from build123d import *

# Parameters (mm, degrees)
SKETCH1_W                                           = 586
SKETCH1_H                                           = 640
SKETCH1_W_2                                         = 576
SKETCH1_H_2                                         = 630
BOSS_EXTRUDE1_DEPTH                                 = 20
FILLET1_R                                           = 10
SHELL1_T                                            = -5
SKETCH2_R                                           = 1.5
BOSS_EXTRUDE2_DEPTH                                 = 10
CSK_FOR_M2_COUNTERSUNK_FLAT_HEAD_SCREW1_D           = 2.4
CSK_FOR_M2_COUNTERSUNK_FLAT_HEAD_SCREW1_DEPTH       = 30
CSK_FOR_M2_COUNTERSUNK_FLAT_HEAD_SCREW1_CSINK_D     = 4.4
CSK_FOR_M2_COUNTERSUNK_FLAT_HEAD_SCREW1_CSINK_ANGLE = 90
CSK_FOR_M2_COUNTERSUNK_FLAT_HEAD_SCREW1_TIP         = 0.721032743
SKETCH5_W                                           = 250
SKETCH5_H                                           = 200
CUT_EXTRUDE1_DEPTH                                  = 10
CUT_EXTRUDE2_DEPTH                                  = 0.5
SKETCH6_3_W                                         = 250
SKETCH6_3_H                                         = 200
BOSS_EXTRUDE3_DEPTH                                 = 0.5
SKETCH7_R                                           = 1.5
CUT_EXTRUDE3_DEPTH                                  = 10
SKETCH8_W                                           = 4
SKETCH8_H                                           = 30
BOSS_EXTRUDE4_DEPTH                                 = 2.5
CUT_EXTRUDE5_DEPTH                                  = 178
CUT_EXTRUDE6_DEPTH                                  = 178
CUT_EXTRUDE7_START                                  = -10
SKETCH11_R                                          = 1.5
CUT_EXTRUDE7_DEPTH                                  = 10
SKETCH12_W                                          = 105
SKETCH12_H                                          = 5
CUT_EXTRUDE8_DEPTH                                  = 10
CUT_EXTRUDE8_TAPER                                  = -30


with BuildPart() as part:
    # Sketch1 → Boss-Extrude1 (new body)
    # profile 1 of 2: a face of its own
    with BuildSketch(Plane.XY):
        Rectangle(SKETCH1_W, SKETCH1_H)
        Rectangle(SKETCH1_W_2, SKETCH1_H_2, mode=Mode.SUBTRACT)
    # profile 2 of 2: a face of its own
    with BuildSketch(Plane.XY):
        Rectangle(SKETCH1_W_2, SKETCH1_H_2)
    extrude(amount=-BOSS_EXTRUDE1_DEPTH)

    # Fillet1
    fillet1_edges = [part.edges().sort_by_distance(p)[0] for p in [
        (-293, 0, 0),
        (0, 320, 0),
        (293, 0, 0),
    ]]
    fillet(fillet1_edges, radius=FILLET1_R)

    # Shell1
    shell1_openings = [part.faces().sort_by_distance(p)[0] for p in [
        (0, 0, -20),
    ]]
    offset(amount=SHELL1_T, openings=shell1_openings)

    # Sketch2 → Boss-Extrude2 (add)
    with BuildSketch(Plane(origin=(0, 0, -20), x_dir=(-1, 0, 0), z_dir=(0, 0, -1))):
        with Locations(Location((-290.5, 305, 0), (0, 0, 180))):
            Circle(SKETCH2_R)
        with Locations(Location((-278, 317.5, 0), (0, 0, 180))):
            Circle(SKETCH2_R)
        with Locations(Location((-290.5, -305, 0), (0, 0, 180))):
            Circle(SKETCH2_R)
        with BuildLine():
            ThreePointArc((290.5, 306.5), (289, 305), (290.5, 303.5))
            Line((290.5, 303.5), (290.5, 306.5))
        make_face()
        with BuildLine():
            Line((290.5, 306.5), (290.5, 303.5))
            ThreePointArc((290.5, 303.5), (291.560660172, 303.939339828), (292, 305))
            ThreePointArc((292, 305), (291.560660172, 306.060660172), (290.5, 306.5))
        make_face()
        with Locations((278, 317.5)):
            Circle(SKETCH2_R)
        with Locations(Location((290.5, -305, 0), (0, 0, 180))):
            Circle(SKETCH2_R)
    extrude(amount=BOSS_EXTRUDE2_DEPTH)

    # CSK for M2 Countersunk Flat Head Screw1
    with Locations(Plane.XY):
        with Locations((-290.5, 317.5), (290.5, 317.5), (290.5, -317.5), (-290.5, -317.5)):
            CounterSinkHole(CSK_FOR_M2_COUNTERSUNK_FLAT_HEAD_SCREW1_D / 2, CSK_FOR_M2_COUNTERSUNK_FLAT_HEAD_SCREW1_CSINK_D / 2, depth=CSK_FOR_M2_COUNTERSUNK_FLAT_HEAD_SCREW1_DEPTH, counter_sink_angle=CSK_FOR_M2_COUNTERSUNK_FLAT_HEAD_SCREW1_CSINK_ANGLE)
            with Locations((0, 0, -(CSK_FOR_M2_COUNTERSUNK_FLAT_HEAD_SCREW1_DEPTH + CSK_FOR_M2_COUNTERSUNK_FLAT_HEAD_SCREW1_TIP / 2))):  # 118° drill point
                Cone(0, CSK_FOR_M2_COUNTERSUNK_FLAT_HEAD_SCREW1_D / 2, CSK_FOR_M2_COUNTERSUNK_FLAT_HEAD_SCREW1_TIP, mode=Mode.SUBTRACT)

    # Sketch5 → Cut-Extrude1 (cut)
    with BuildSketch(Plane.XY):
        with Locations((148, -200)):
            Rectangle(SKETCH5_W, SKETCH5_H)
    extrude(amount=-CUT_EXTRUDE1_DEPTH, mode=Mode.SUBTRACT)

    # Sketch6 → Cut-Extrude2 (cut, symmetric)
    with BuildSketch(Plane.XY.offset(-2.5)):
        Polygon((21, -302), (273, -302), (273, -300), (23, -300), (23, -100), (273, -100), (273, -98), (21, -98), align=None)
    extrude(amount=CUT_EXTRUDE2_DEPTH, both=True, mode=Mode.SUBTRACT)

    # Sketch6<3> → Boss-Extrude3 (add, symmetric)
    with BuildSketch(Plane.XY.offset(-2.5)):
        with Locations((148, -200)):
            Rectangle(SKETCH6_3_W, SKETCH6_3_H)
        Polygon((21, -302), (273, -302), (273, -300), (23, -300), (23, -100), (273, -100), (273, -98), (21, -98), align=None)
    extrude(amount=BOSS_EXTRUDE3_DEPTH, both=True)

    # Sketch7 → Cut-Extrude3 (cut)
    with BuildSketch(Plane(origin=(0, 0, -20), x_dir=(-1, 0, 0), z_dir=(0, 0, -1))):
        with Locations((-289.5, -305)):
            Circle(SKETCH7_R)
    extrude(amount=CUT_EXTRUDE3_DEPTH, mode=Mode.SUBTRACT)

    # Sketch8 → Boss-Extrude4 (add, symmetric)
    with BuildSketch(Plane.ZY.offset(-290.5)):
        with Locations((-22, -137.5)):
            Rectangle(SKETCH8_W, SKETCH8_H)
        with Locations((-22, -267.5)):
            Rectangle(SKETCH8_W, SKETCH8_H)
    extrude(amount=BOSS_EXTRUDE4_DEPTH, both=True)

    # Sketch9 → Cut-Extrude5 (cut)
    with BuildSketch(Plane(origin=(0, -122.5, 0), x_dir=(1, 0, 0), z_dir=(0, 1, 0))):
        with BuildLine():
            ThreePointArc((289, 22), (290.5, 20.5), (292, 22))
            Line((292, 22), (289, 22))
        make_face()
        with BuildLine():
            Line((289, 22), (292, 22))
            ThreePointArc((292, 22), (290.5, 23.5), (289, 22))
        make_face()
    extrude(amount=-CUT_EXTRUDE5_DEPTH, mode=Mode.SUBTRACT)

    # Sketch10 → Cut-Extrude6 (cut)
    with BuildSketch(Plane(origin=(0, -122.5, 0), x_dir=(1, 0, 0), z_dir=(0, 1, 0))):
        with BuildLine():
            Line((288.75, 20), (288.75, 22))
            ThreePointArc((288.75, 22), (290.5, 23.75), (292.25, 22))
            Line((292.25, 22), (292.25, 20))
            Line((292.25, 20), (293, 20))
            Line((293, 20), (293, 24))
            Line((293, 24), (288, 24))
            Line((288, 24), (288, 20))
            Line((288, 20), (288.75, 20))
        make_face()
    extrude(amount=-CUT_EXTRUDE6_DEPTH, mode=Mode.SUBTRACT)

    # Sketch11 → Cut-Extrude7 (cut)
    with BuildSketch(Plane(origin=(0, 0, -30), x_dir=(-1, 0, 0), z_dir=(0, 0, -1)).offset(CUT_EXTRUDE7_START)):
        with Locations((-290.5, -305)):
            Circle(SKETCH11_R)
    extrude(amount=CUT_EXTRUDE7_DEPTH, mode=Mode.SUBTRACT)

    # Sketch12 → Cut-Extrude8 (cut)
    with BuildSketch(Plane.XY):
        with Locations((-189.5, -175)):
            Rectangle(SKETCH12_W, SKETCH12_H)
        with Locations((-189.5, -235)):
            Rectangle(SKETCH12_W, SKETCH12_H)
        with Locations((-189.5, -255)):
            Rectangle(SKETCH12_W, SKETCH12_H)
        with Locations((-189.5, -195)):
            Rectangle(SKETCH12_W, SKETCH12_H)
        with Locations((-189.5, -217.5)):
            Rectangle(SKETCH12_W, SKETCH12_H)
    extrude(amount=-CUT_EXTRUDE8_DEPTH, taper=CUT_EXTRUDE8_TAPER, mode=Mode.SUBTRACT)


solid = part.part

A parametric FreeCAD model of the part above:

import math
import FreeCAD as App
import Part
import Sketcher

V = App.Vector
Q = App.Units.Quantity


def edges_at(feature, points):
    """Names of the edges that pass closest to the given points."""
    edges = feature.Shape.Edges
    near = lambda p: min(range(len(edges)), key=lambda i: edges[i].distToShape(Part.Vertex(*p))[0])
    return sorted({f"Edge{near(p) + 1}" for p in points})


def faces_at(feature, points):
    """Names of the faces that lie closest to the given points."""
    faces = feature.Shape.Faces
    near = lambda p: min(range(len(faces)), key=lambda i: faces[i].distToShape(Part.Vertex(*p))[0])
    return sorted({f"Face{near(p) + 1}" for p in points})


def add_polygon(sketch, points):
    """Adds a closed chain of lines whose ends are joined by coincident constraints."""
    first, n = sketch.GeometryCount, len(points)
    for a, b in zip(points, points[1:] + points[:1]):
        sketch.addGeometry(Part.LineSegment(App.Vector(*a, 0), App.Vector(*b, 0)), False)
    for i in range(n):
        sketch.addConstraint(Sketcher.Constraint("Coincident", first + i, 2, first + (i + 1) % n, 1))

doc = App.newDocument("Part")
body = doc.addObject("PartDesign::Body", "Body")

sketch1 = body.newObject("Sketcher::SketchObject", "Sketch")
sketch1.AttachmentSupport = (doc.getObject("XY_Plane"), [""])
sketch1.MapMode = "FlatFace"
add_polygon(sketch1, [(-293, 320), (-293, -320), (293, -320), (293, 320)])
sketch1.addConstraint([
    Sketcher.Constraint("Vertical", 0),
    Sketcher.Constraint("Horizontal", 1),
    Sketcher.Constraint("Vertical", 2),
    Sketcher.Constraint("Horizontal", 3),
    Sketcher.Constraint("Symmetric", 0, 2, 2, 2, -1, 1),
    Sketcher.Constraint("DistanceX", 1, 1, 1, 2, Q("586 mm")),
    Sketcher.Constraint("DistanceY", 0, 2, 0, 1, Q("640 mm")),
])
pad1 = body.newObject("PartDesign::Pad", "Pad")
pad1.Profile = sketch1
pad1.Length = 20
pad1.Reversed = True
doc.recompute()

fillet = body.newObject("PartDesign::Fillet", "Fillet")
fillet.Base = (pad1, edges_at(pad1, [(-293, 0, 0), (0, 320, 0), (293, 0, 0)]))
fillet.Radius = 10
doc.recompute()

thickness = body.newObject("PartDesign::Thickness", "Thickness")
thickness.Base = (fillet, faces_at(fillet, [(0, 0, -20)]))
thickness.Value = 5
thickness.Reversed = True
thickness.Join = "Arc"

sketch2 = body.newObject("Sketcher::SketchObject", "Sketch001")
sketch2.AttachmentSupport = (doc.getObject("XY_Plane"), [""])
sketch2.MapMode = "FlatFace"
sketch2.AttachmentOffset = App.Placement(V(0, 0, -20), App.Rotation())
sketch2.addGeometry([
    Part.Circle(V(290.5, 305, 0), V(0, 0, 1), 1.5),
    Part.Circle(V(278, 317.5, 0), V(0, 0, 1), 1.5),
    Part.Circle(V(290.5, -305, 0), V(0, 0, 1), 1.5),
    Part.ArcOfCircle(Part.Circle(V(-290.5, 305, 0), V(0, 0, 1), 1.5), math.radians(-90), math.radians(90)),
    Part.ArcOfCircle(Part.Circle(V(-290.5, 305, 0), V(0, 0, 1), 1.5), math.radians(180), math.radians(270)),
    Part.ArcOfCircle(Part.Circle(V(-290.5, 305, 0), V(0, 0, 1), 1.5), math.radians(90), math.radians(180)),
    Part.Circle(V(-278, 317.5, 0), V(0, 0, 1), 1.5),
    Part.Circle(V(-290.5, -305, 0), V(0, 0, 1), 1.5),
], False)
sketch2.addConstraint([
    Sketcher.Constraint("Tangent", 3, 1, 4, 2),
    Sketcher.Constraint("Tangent", 4, 1, 5, 2),
    Sketcher.Constraint("Tangent", 5, 1, 3, 2),
    Sketcher.Constraint("Equal", 0, 1),
    Sketcher.Constraint("Equal", 1, 2),
    Sketcher.Constraint("Equal", 2, 3),
    Sketcher.Constraint("Equal", 5, 6),
    Sketcher.Constraint("Equal", 6, 7),
    Sketcher.Constraint("Symmetric", 2, 3, 3, 3, -1, 1),
    Sketcher.Constraint("Symmetric", 0, 3, 7, 3, -1, 1),
    Sketcher.Constraint("Symmetric", 0, 3, 3, 3, -2),
    Sketcher.Constraint("Symmetric", 1, 3, 6, 3, -2),
    Sketcher.Constraint("Horizontal", 5, 3, 4, 1),
    Sketcher.Constraint("Vertical", 7, 3, 3, 1),
    Sketcher.Constraint("Vertical", 3, 1, 5, 1),
    Sketcher.Constraint("Diameter", 0, Q("3 mm")),
    Sketcher.Constraint("DistanceY", -1, 1, 0, 3, Q("305 mm")),
    Sketcher.Constraint("DistanceX", -1, 1, 1, 3, Q("278 mm")),
    Sketcher.Constraint("DistanceX", 4, 1, -1, 1, Q("292 mm")),
    Sketcher.Constraint("DistanceY", 3, 1, 6, 3, Q("14 mm")),
])
pad2 = body.newObject("PartDesign::Pad", "Pad001")
pad2.Profile = sketch2
pad2.Length = 10
pad2.Reversed = True

sketch3 = body.newObject("Sketcher::SketchObject", "Sketch002")
sketch3.AttachmentSupport = (doc.getObject("XY_Plane"), [""])
sketch3.MapMode = "FlatFace"
sketch3.addGeometry([
    Part.Circle(V(-290.5, 317.5, 0), V(0, 0, 1), 1.2),
    Part.Circle(V(290.5, 317.5, 0), V(0, 0, 1), 1.2),
    Part.Circle(V(290.5, -317.5, 0), V(0, 0, 1), 1.2),
    Part.Circle(V(-290.5, -317.5, 0), V(0, 0, 1), 1.2),
], False)
sketch3.addConstraint([
    Sketcher.Constraint("Equal", 0, 1),
    Sketcher.Constraint("Equal", 1, 2),
    Sketcher.Constraint("Equal", 2, 3),
    Sketcher.Constraint("Symmetric", 0, 3, 2, 3, -1, 1),
    Sketcher.Constraint("Symmetric", 1, 3, 3, 3, -1, 1),
    Sketcher.Constraint("Symmetric", 0, 3, 1, 3, -2),
    Sketcher.Constraint("Diameter", 0, Q("2.4 mm")),
    Sketcher.Constraint("DistanceX", 0, 3, 1, 3, Q("581 mm")),
    Sketcher.Constraint("DistanceY", 2, 3, 1, 3, Q("635 mm")),
])
doc.recompute()
hole = body.newObject("PartDesign::Hole", "Hole")
hole.Profile = sketch3
hole.ThreadType = "None"
hole.Diameter = 2.4
hole.DepthType = "Dimension"
hole.Depth = 30
hole.DrillPoint = "Angled"
hole.DrillPointAngle = 118
hole.HoleCutType = "Countersink"
hole.HoleCutDiameter = 4.4
hole.HoleCutCountersinkAngle = 90

sketch4 = body.newObject("Sketcher::SketchObject", "Sketch003")
sketch4.AttachmentSupport = (doc.getObject("XY_Plane"), [""])
sketch4.MapMode = "FlatFace"
add_polygon(sketch4, [(23, -100), (23, -300), (273, -300), (273, -100)])
sketch4.addConstraint([
    Sketcher.Constraint("Vertical", 0),
    Sketcher.Constraint("Horizontal", 1),
    Sketcher.Constraint("Vertical", 2),
    Sketcher.Constraint("Horizontal", 3),
    Sketcher.Constraint("DistanceX", 1, 1, 1, 2, Q("250 mm")),
    Sketcher.Constraint("DistanceY", 0, 2, 0, 1, Q("200 mm")),
    Sketcher.Constraint("DistanceX", -1, 1, 0, 2, Q("23 mm")),
    Sketcher.Constraint("DistanceY", 0, 2, -1, 1, Q("300 mm")),
])
pocket1 = body.newObject("PartDesign::Pocket", "Pocket")
pocket1.Profile = sketch4
pocket1.Length = 10

sketch5 = body.newObject("Sketcher::SketchObject", "Sketch004")
sketch5.AttachmentSupport = (doc.getObject("XY_Plane"), [""])
sketch5.MapMode = "FlatFace"
sketch5.AttachmentOffset = App.Placement(V(0, 0, -2.5), App.Rotation())
add_polygon(sketch5, [(21, -302), (273, -302), (273, -300), (23, -300), (23, -100), (273, -100), (273, -98), (21, -98)])
sketch5.addConstraint([
    Sketcher.Constraint("Horizontal", 0),
    Sketcher.Constraint("Vertical", 1),
    Sketcher.Constraint("Horizontal", 2),
    Sketcher.Constraint("Vertical", 3),
    Sketcher.Constraint("Horizontal", 4),
    Sketcher.Constraint("Vertical", 5),
    Sketcher.Constraint("Horizontal", 6),
    Sketcher.Constraint("Vertical", 7),
    Sketcher.Constraint("Vertical", 1, 2, 4, 2),
    Sketcher.Constraint("Equal", 1, 5),
    Sketcher.Constraint("DistanceX", 0, 1, 0, 2, Q("252 mm")),
    Sketcher.Constraint("DistanceX", 2, 2, 2, 1, Q("250 mm")),
    Sketcher.Constraint("DistanceY", 1, 1, 1, 2, Q("2 mm")),
    Sketcher.Constraint("DistanceY", 3, 1, 3, 2, Q("200 mm")),
    Sketcher.Constraint("DistanceX", -1, 1, 0, 2, Q("273 mm")),
    Sketcher.Constraint("DistanceY", 0, 2, -1, 1, Q("302 mm")),
])
pocket2 = body.newObject("PartDesign::Pocket", "Pocket001")
pocket2.Profile = sketch5
pocket2.Length = 1
pocket2.Midplane = True

sketch6 = body.newObject("Sketcher::SketchObject", "Sketch005")
sketch6.AttachmentSupport = (doc.getObject("XY_Plane"), [""])
sketch6.MapMode = "FlatFace"
sketch6.AttachmentOffset = App.Placement(V(0, 0, -2.5), App.Rotation())
add_polygon(sketch6, [(273, -98), (21, -98), (21, -302), (273, -302)])
sketch6.addConstraint([
    Sketcher.Constraint("Horizontal", 0),
    Sketcher.Constraint("Vertical", 1),
    Sketcher.Constraint("Horizontal", 2),
    Sketcher.Constraint("Vertical", 3),
    Sketcher.Constraint("DistanceX", 0, 2, 0, 1, Q("252 mm")),
    Sketcher.Constraint("DistanceY", 1, 2, 1, 1, Q("204 mm")),
    Sketcher.Constraint("DistanceX", -1, 1, 0, 2, Q("21 mm")),
    Sketcher.Constraint("DistanceY", 0, 2, -1, 1, Q("98 mm")),
])
pad3 = body.newObject("PartDesign::Pad", "Pad002")
pad3.Profile = sketch6
pad3.Length = 1
pad3.Midplane = True

sketch7 = body.newObject("Sketcher::SketchObject", "Sketch006")
sketch7.AttachmentSupport = (doc.getObject("XY_Plane"), [""])
sketch7.MapMode = "FlatFace"
sketch7.AttachmentOffset = App.Placement(V(0, 0, -20), App.Rotation())
sketch7.addGeometry(Part.Circle(V(289.5, -305, 0), V(0, 0, 1), 1.5), False)
sketch7.addConstraint([
    Sketcher.Constraint("Diameter", 0, Q("3 mm")),
    Sketcher.Constraint("DistanceY", 0, 3, -1, 1, Q("305 mm")),
    Sketcher.Constraint("DistanceX", -1, 1, 0, 3, Q("289.5 mm")),
])
pocket3 = body.newObject("PartDesign::Pocket", "Pocket002")
pocket3.Profile = sketch7
pocket3.Length = 10

sketch8 = body.newObject("Sketcher::SketchObject", "Sketch007")
sketch8.AttachmentSupport = (doc.getObject("YZ_Plane"), [""])
sketch8.MapMode = "FlatFace"
sketch8.AttachmentOffset = App.Placement(V(0, 0, 290.5), App.Rotation())
add_polygon(sketch8, [(-122.5, -24), (-152.5, -24), (-152.5, -20), (-122.5, -20)])
add_polygon(sketch8, [(-252.5, -24), (-282.5, -24), (-282.5, -20), (-252.5, -20)])
sketch8.addConstraint([
    Sketcher.Constraint("Horizontal", 0),
    Sketcher.Constraint("Vertical", 1),
    Sketcher.Constraint("Horizontal", 2),
    Sketcher.Constraint("Vertical", 3),
    Sketcher.Constraint("Horizontal", 4),
    Sketcher.Constraint("Vertical", 5),
    Sketcher.Constraint("Horizontal", 6),
    Sketcher.Constraint("Vertical", 7),
    Sketcher.Constraint("Horizontal", 3, 2, 4, 2),
    Sketcher.Constraint("Horizontal", 2, 2, 5, 2),
    Sketcher.Constraint("Equal", 2, 4),
    Sketcher.Constraint("DistanceX", 0, 2, 0, 1, Q("30 mm")),
    Sketcher.Constraint("DistanceY", 1, 1, 1, 2, Q("4 mm")),
    Sketcher.Constraint("DistanceY", 0, 2, -1, 1, Q("24 mm")),
    Sketcher.Constraint("DistanceX", 4, 2, 0, 2, Q("130 mm")),
    Sketcher.Constraint("DistanceX", 0, 2, -1, 1, Q("152.5 mm")),
])
pad4 = body.newObject("PartDesign::Pad", "Pad003")
pad4.Profile = sketch8
pad4.Length = 5
pad4.Midplane = True

sketch9 = body.newObject("Sketcher::SketchObject", "Sketch008")
sketch9.AttachmentSupport = (doc.getObject("XZ_Plane"), [""])
sketch9.MapMode = "FlatFace"
sketch9.AttachmentOffset = App.Placement(V(0, 0, 122.5), App.Rotation())
sketch9.addGeometry(Part.Circle(V(290.5, -22, 0), V(0, 0, 1), 1.5), False)
sketch9.addConstraint([
    Sketcher.Constraint("Diameter", 0, Q("3 mm")),
    Sketcher.Constraint("DistanceY", 0, 3, -1, 1, Q("22 mm")),
    Sketcher.Constraint("DistanceX", -1, 1, 0, 3, Q("290.5 mm")),
])
pocket4 = body.newObject("PartDesign::Pocket", "Pocket003")
pocket4.Profile = sketch9
pocket4.Length = 178
pocket4.Reversed = True

sketch10 = body.newObject("Sketcher::SketchObject", "Sketch009")
sketch10.AttachmentSupport = (doc.getObject("XZ_Plane"), [""])
sketch10.MapMode = "FlatFace"
sketch10.AttachmentOffset = App.Placement(V(0, 0, 122.5), App.Rotation())
sketch10.addGeometry([
    Part.LineSegment(V(288.8, -20, 0), V(288.8, -22, 0)),
    Part.ArcOfCircle(Part.Circle(V(290.5, -22, 0), V(0, 0, 1), 1.8), math.radians(180), math.radians(360)),
    Part.LineSegment(V(292.2, -22, 0), V(292.2, -20, 0)),
    Part.LineSegment(V(292.2, -20, 0), V(293, -20, 0)),
    Part.LineSegment(V(293, -20, 0), V(293, -24, 0)),
    Part.LineSegment(V(293, -24, 0), V(288, -24, 0)),
    Part.LineSegment(V(288, -24, 0), V(288, -20, 0)),
    Part.LineSegment(V(288, -20, 0), V(288.8, -20, 0)),
], False)
sketch10.addConstraint([
    Sketcher.Constraint("Tangent", 0, 2, 1, 1),
    Sketcher.Constraint("Tangent", 1, 2, 2, 1),
    Sketcher.Constraint("Coincident", 2, 2, 3, 1),
    Sketcher.Constraint("Coincident", 3, 2, 4, 1),
    Sketcher.Constraint("Coincident", 4, 2, 5, 1),
    Sketcher.Constraint("Coincident", 5, 2, 6, 1),
    Sketcher.Constraint("Coincident", 6, 2, 7, 1),
    Sketcher.Constraint("Coincident", 7, 2, 0, 1),
    Sketcher.Constraint("Vertical", 0),
    Sketcher.Constraint("Vertical", 2),
    Sketcher.Constraint("Horizontal", 3),
    Sketcher.Constraint("Vertical", 4),
    Sketcher.Constraint("Horizontal", 5),
    Sketcher.Constraint("Vertical", 6),
    Sketcher.Constraint("Horizontal", 7),
    Sketcher.Constraint("Horizontal", 3, 2, 6, 2),
    Sketcher.Constraint("Equal", 3, 7),
    Sketcher.Constraint("DistanceX", 5, 2, 5, 1, Q("5 mm")),
    Sketcher.Constraint("DistanceY", 0, 2, 0, 1, Q("2 mm")),
    Sketcher.Constraint("DistanceY", 4, 2, 4, 1, Q("4 mm")),
    Sketcher.Constraint("Radius", 1, Q("1.75 mm")),
    Sketcher.Constraint("DistanceY", 1, 3, -1, 1, Q("22 mm")),
    Sketcher.Constraint("DistanceX", -1, 1, 3, 2, Q("293 mm")),
])
pocket5 = body.newObject("PartDesign::Pocket", "Pocket004")
pocket5.Profile = sketch10
pocket5.Length = 178
pocket5.Reversed = True

sketch11 = body.newObject("Sketcher::SketchObject", "Sketch010")
sketch11.AttachmentSupport = (doc.getObject("XY_Plane"), [""])
sketch11.MapMode = "FlatFace"
sketch11.AttachmentOffset = App.Placement(V(0, 0, -20), App.Rotation())
sketch11.addGeometry(Part.Circle(V(290.5, -305, 0), V(0, 0, 1), 1.5), False)
sketch11.addConstraint([
    Sketcher.Constraint("Diameter", 0, Q("3 mm")),
    Sketcher.Constraint("DistanceY", 0, 3, -1, 1, Q("305 mm")),
    Sketcher.Constraint("DistanceX", -1, 1, 0, 3, Q("290.5 mm")),
])
pocket6 = body.newObject("PartDesign::Pocket", "Pocket005")
pocket6.Profile = sketch11
pocket6.Length = 10

sketch12 = body.newObject("Sketcher::SketchObject", "Sketch011")
sketch12.AttachmentSupport = (doc.getObject("XY_Plane"), [""])
sketch12.MapMode = "FlatFace"
add_polygon(sketch12, [(-242, -172), (-242, -178), (-137, -178), (-137, -172)])
add_polygon(sketch12, [(-242, -232), (-242, -238), (-137, -238), (-137, -232)])
add_polygon(sketch12, [(-242, -252), (-242, -258), (-137, -258), (-137, -252)])
add_polygon(sketch12, [(-242, -192), (-242, -198), (-137, -198), (-137, -192)])
add_polygon(sketch12, [(-242, -215), (-242, -220), (-137, -220), (-137, -215)])
sketch12.addConstraint([
    Sketcher.Constraint("Vertical", 0),
    Sketcher.Constraint("Horizontal", 1),
    Sketcher.Constraint("Vertical", 2),
    Sketcher.Constraint("Horizontal", 3),
    Sketcher.Constraint("Vertical", 4),
    Sketcher.Constraint("Horizontal", 5),
    Sketcher.Constraint("Vertical", 6),
    Sketcher.Constraint("Horizontal", 7),
    Sketcher.Constraint("Vertical", 8),
    Sketcher.Constraint("Horizontal", 9),
    Sketcher.Constraint("Vertical", 10),
    Sketcher.Constraint("Horizontal", 11),
    Sketcher.Constraint("Vertical", 12),
    Sketcher.Constraint("Horizontal", 13),
    Sketcher.Constraint("Vertical", 14),
    Sketcher.Constraint("Horizontal", 15),
    Sketcher.Constraint("Vertical", 16),
    Sketcher.Constraint("Horizontal", 17),
    Sketcher.Constraint("Vertical", 18),
    Sketcher.Constraint("Horizontal", 19),
    Sketcher.Constraint("Vertical", 3, 2, 4, 2),
    Sketcher.Constraint("Vertical", 2, 2, 5, 2),
    Sketcher.Constraint("Vertical", 7, 2, 8, 2),
    Sketcher.Constraint("Vertical", 6, 2, 9, 2),
    Sketcher.Constraint("Vertical", 11, 2, 12, 2),
    Sketcher.Constraint("Vertical", 10, 2, 13, 2),
    Sketcher.Constraint("Vertical", 15, 2, 16, 2),
    Sketcher.Constraint("Vertical", 14, 2, 17, 2),
    Sketcher.Constraint("Equal", 2, 4),
    Sketcher.Constraint("Equal", 6, 8),
    Sketcher.Constraint("Equal", 10, 12),
    Sketcher.Constraint("Equal", 14, 16),
    Sketcher.Constraint("DistanceX", 1, 1, 1, 2, Q("105 mm")),
    Sketcher.Constraint("DistanceY", 0, 2, 0, 1, Q("5 mm")),
    Sketcher.Constraint("DistanceX", 0, 2, -1, 1, Q("242 mm")),
    Sketcher.Constraint("DistanceY", 16, 2, -1, 1, Q("220 mm")),
    Sketcher.Constraint("DistanceY", 4, 2, 0, 2, Q("60 mm")),
    Sketcher.Constraint("DistanceY", 8, 2, 4, 2, Q("20 mm")),
    Sketcher.Constraint("DistanceY", 12, 2, 0, 2, Q("20 mm")),
    Sketcher.Constraint("DistanceY", 0, 2, -1, 1, Q("177.5 mm")),
])
pocket7 = body.newObject("PartDesign::Pocket", "Pocket006")
pocket7.Profile = sketch12
pocket7.Length = 10
pocket7.TaperAngle = 30

doc.recompute()
